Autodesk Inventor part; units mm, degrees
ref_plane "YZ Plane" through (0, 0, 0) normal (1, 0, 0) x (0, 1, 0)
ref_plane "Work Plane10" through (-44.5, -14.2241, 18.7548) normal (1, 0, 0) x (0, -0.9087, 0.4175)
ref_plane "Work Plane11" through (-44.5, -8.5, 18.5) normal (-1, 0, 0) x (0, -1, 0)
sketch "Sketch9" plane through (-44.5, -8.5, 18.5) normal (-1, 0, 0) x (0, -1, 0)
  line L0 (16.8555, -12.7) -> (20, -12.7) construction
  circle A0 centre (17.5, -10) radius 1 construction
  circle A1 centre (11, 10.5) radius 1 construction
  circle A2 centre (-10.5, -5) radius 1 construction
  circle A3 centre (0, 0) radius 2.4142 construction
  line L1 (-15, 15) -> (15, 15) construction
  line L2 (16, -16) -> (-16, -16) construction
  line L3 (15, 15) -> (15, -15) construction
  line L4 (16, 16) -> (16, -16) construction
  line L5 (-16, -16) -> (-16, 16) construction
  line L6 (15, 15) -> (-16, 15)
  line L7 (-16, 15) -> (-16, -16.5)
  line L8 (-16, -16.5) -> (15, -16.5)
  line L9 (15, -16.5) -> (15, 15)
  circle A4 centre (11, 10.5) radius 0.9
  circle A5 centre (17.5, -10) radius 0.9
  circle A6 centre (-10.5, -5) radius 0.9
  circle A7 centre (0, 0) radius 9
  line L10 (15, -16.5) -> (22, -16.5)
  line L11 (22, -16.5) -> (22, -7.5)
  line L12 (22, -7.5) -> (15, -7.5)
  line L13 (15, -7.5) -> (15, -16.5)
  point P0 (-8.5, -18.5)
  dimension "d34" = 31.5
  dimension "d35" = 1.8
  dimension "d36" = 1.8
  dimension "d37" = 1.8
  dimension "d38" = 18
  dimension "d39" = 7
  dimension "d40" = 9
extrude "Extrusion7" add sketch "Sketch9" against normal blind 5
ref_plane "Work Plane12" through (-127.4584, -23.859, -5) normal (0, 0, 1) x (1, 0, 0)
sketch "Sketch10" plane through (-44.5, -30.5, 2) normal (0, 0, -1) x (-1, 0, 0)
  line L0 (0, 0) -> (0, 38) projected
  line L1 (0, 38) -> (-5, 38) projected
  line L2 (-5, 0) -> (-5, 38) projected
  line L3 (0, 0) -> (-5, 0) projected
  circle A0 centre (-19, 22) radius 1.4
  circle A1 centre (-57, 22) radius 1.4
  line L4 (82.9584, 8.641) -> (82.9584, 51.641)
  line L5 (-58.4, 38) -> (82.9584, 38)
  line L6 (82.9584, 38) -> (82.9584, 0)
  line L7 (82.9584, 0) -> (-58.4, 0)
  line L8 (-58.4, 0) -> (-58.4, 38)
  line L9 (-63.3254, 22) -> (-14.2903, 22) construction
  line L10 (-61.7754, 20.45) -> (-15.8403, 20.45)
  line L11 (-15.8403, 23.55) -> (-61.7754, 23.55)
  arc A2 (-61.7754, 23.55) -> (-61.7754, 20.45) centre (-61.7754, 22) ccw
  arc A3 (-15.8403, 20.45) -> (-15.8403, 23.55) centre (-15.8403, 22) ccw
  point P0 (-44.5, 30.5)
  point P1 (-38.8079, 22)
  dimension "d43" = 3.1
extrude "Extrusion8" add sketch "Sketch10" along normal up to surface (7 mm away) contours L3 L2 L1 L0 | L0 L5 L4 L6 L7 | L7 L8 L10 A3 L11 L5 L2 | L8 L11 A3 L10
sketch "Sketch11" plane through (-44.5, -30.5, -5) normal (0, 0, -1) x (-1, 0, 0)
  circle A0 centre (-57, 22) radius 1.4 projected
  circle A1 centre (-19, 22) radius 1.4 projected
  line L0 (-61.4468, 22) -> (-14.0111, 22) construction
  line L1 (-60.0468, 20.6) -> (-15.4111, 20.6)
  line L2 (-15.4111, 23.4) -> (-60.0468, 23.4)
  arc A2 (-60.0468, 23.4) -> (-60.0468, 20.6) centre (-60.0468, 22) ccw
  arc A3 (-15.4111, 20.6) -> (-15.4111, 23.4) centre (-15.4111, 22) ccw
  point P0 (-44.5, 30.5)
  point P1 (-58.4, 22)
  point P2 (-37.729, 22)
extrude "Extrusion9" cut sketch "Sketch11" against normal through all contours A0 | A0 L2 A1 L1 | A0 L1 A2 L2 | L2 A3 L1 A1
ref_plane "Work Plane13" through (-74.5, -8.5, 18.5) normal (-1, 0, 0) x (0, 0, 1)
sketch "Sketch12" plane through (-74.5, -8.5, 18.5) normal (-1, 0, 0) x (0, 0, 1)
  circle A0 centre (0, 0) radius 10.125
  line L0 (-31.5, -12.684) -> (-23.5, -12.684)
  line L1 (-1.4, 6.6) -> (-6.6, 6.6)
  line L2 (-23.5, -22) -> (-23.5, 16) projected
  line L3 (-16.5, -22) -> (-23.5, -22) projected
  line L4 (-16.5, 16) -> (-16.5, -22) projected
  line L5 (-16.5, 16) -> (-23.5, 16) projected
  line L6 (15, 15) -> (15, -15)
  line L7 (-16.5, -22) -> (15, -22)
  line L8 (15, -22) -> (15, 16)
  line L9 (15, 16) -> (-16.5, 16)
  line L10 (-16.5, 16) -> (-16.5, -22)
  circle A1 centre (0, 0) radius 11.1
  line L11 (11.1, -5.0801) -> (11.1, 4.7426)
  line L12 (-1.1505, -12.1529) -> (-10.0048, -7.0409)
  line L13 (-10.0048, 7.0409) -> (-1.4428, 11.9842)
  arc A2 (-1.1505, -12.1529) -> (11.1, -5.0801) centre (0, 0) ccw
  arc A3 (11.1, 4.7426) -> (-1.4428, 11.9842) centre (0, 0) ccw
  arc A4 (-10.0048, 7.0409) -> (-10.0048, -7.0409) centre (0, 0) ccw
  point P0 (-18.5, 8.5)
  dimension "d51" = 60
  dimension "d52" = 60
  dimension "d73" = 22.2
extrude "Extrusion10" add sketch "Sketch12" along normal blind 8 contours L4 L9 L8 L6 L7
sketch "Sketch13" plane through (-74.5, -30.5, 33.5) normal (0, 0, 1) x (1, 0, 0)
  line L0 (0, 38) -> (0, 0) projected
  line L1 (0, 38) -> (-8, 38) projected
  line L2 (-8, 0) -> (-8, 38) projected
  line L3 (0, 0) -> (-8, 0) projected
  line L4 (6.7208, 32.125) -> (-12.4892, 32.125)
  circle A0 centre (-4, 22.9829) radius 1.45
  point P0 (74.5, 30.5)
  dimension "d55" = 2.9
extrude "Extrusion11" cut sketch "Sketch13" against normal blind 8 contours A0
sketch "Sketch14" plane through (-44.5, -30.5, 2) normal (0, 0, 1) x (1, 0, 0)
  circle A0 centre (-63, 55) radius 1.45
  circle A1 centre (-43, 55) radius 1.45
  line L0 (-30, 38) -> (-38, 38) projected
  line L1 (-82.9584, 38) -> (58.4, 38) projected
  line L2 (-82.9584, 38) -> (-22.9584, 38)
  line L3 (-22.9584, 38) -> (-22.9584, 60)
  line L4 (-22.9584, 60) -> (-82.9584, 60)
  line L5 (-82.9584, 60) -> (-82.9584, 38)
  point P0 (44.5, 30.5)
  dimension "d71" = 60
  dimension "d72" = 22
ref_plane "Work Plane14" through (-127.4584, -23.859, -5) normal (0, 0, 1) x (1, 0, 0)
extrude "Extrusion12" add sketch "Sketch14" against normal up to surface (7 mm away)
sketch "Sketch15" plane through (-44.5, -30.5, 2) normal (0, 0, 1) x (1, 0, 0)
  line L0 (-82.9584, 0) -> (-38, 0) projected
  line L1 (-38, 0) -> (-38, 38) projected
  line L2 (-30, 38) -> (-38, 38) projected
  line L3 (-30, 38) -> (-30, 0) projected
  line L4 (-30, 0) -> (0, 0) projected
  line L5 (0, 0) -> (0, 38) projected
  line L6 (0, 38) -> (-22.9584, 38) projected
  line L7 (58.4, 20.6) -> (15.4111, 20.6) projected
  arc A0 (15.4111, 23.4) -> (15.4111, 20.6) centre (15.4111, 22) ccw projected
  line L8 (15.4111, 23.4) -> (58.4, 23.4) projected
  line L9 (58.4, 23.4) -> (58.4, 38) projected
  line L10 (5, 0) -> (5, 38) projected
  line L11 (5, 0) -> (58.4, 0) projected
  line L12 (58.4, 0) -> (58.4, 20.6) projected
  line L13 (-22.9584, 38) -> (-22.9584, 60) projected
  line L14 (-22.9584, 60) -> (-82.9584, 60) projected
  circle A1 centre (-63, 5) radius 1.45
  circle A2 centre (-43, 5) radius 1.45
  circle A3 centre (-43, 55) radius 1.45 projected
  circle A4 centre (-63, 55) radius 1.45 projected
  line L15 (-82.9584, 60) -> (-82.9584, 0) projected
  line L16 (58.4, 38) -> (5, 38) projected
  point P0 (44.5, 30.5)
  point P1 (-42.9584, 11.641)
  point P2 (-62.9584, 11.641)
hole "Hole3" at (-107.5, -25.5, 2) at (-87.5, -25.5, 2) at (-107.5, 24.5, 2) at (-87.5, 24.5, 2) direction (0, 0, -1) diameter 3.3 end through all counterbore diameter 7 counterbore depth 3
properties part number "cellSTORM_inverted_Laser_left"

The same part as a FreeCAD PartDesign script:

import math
import FreeCAD as App
import Part
import Sketcher
Q = App.Units.Quantity

doc = App.newDocument("Part")
body = doc.addObject("PartDesign::Body", "Body")

# Sketch on YZ plane
sketch1 = body.newObject("Sketcher::SketchObject", "Sketch")
sketch1.AttachmentSupport = (doc.getObject("YZ_Plane"), [""])
sketch1.MapMode = "FlatFace"
sketch1.AttachmentOffset = App.Placement(App.Vector(0, 0, -44.5), App.Rotation())
sketch1.addGeometry(Part.LineSegment(App.Vector(-23.5, 11, 0), App.Vector(-23.5, 33.5, 0)), False)
sketch1.addGeometry(Part.LineSegment(App.Vector(-23.5, 33.5, 0), App.Vector(7.5, 33.5, 0)), False)
sketch1.addGeometry(Part.LineSegment(App.Vector(7.5, 33.5, 0), App.Vector(7.5, 2, 0)), False)
sketch1.addGeometry(Part.LineSegment(App.Vector(7.5, 2, 0), App.Vector(-30.5, 2, 0)), False)
sketch1.addGeometry(Part.LineSegment(App.Vector(-30.5, 2, 0), App.Vector(-30.5, 11, 0)), False)
sketch1.addGeometry(Part.LineSegment(App.Vector(-30.5, 11, 0), App.Vector(-23.5, 11, 0)), False)
sketch1.addGeometry(Part.Circle(App.Vector(2, 13.5, 0), App.Vector(0, 0, 1), 0.9), False)
sketch1.addGeometry(Part.Circle(App.Vector(-8.5, 18.5, 0), App.Vector(0, 0, 1), 9), False)
sketch1.addGeometry(Part.Circle(App.Vector(-19.5, 29, 0), App.Vector(0, 0, 1), 0.9), False)
sketch1.addGeometry(Part.Circle(App.Vector(-26, 8.5, 0), App.Vector(0, 0, 1), 0.9), False)
sketch1.addConstraint(Sketcher.Constraint("Coincident", 0, 2, 1, 1))
sketch1.addConstraint(Sketcher.Constraint("Coincident", 1, 2, 2, 1))
sketch1.addConstraint(Sketcher.Constraint("Coincident", 2, 2, 3, 1))
sketch1.addConstraint(Sketcher.Constraint("Coincident", 3, 2, 4, 1))
sketch1.addConstraint(Sketcher.Constraint("Coincident", 4, 2, 5, 1))
sketch1.addConstraint(Sketcher.Constraint("Coincident", 5, 2, 0, 1))
sketch1.addConstraint(Sketcher.Constraint("Vertical", 0))
sketch1.addConstraint(Sketcher.Constraint("Horizontal", 1))
sketch1.addConstraint(Sketcher.Constraint("Vertical", 2))
sketch1.addConstraint(Sketcher.Constraint("Horizontal", 3))
sketch1.addConstraint(Sketcher.Constraint("Vertical", 4))
sketch1.addConstraint(Sketcher.Constraint("Horizontal", 5))
sketch1.addConstraint(Sketcher.Constraint("Equal", 6, 8))
sketch1.addConstraint(Sketcher.Constraint("Equal", 8, 9))
sketch1.addConstraint(Sketcher.Constraint("Diameter", 7, 18.0))
sketch1.addConstraint(Sketcher.Constraint("Diameter", 6, 1.8))
sketch1.addConstraint(Sketcher.Constraint("DistanceX", 5, 1, 5, 2, 7.0))
sketch1.addConstraint(Sketcher.Constraint("DistanceY", 4, 1, 4, 2, 9.0))
sketch1.addConstraint(Sketcher.Constraint("DistanceY", 2, 2, 2, 1, 31.5))
sketch1.addConstraint(Sketcher.Constraint("DistanceY", 4, 2, 8, 3, 18.0))
sketch1.addConstraint(Sketcher.Constraint("DistanceX", 1, 1, 1, 2, 31.0))
sketch1.addConstraint(Sketcher.Constraint("DistanceX", -1, 1, 6, 3, 2.0))
sketch1.addConstraint(Sketcher.Constraint("DistanceY", -1, 1, 8, 3, 29.0))
sketch1.addConstraint(Sketcher.Constraint("DistanceX", 9, 3, -1, 1, 26.0))
sketch1.addConstraint(Sketcher.Constraint("DistanceY", 6, 3, 7, 3, 5.0))
sketch1.addConstraint(Sketcher.Constraint("DistanceX", 8, 3, 7, 3, 11.0))
sketch1.addConstraint(Sketcher.Constraint("DistanceY", 9, 3, 7, 3, 10.0))
sketch1.addConstraint(Sketcher.Constraint("DistanceX", 0, 2, 8, 3, 4.0))
sketch1.addConstraint(Sketcher.Constraint("DistanceY", 7, 3, 0, 2, 15.0))
sketch1.addConstraint(Sketcher.Constraint("DistanceX", 7, 3, -1, 1, 8.5))
pad1 = body.newObject("PartDesign::Pad", "Pad")
pad1.Profile = sketch1
pad1.Length = 5

# Sketch on XY plane
sketch2 = body.newObject("Sketcher::SketchObject", "Sketch001")
sketch2.AttachmentSupport = (doc.getObject("XY_Plane"), [""])
sketch2.MapMode = "FlatFace"
sketch2.AttachmentOffset = App.Placement(App.Vector(0, 0, 2), App.Rotation())
sketch2.addGeometry(Part.LineSegment(App.Vector(13.9, -8.5, 0), App.Vector(13.9, -30.5, 0)), False)
sketch2.addGeometry(Part.LineSegment(App.Vector(13.9, -30.5, 0), App.Vector(-127.5, -30.5, 0)), False)
sketch2.addGeometry(Part.LineSegment(App.Vector(-127.5, -30.5, 0), App.Vector(-127.5, 7.5, 0)), False)
sketch2.addGeometry(Part.LineSegment(App.Vector(-127.5, 7.5, 0), App.Vector(13.9, 7.5, 0)), False)
sketch2.addGeometry(Part.LineSegment(App.Vector(13.9, 7.5, 0), App.Vector(13.9, -8.5, 0)), False)
sketch2.addGeometry(Part.Circle(App.Vector(12.5, -8.5, 0), App.Vector(0, 0, 1), 1.4), False)
sketch2.addGeometry(Part.Circle(App.Vector(-25.5, -8.5, 0), App.Vector(0, 0, 1), 1.4), False)
sketch2.addConstraint(Sketcher.Constraint("Coincident", 0, 2, 1, 1))
sketch2.addConstraint(Sketcher.Constraint("Coincident", 1, 2, 2, 1))
sketch2.addConstraint(Sketcher.Constraint("Coincident", 2, 2, 3, 1))
sketch2.addConstraint(Sketcher.Constraint("Coincident", 3, 2, 4, 1))
sketch2.addConstraint(Sketcher.Constraint("Coincident", 4, 2, 0, 1))
sketch2.addConstraint(Sketcher.Constraint("Vertical", 0))
sketch2.addConstraint(Sketcher.Constraint("Horizontal", 1))
sketch2.addConstraint(Sketcher.Constraint("Vertical", 2))
sketch2.addConstraint(Sketcher.Constraint("Horizontal", 3))
sketch2.addConstraint(Sketcher.Constraint("Vertical", 4))
sketch2.addConstraint(Sketcher.Constraint("Equal", 5, 6))
sketch2.addConstraint(Sketcher.Constraint("Horizontal", 5, 3, 6, 3))
sketch2.addConstraint(Sketcher.Constraint("Horizontal", 6, 3, 4, 2))
sketch2.addConstraint(Sketcher.Constraint("Diameter", 5, 2.8))
sketch2.addConstraint(Sketcher.Constraint("DistanceY", 0, 2, 0, 1, 22.0))
sketch2.addConstraint(Sketcher.Constraint("DistanceY", 2, 1, 2, 2, 38.0))
sketch2.addConstraint(Sketcher.Constraint("DistanceX", 6, 3, 5, 3, 38.0))
sketch2.addConstraint(Sketcher.Constraint("DistanceX", -1, 1, 5, 3, 12.5))
sketch2.addConstraint(Sketcher.Constraint("DistanceY", 5, 3, -1, 1, 8.5))
sketch2.addConstraint(Sketcher.Constraint("DistanceX", -1, 1, 0, 2, 13.9))
sketch2.addConstraint(Sketcher.Constraint("DistanceX", 1, 2, 1, 1, 141.3584))
pad2 = body.newObject("PartDesign::Pad", "Pad001")
pad2.Profile = sketch2
pad2.Length = 7
pad2.Reversed = True

# Sketch on XY plane
sketch3 = body.newObject("Sketcher::SketchObject", "Sketch002")
sketch3.AttachmentSupport = (doc.getObject("XY_Plane"), [""])
sketch3.MapMode = "FlatFace"
sketch3.AttachmentOffset = App.Placement(App.Vector(0, 0, -5), App.Rotation())
sketch3.addGeometry(Part.ArcOfCircle(Part.Circle(App.Vector(-25.5, -8.5, 0), App.Vector(0, 0, 1), 1.4), math.radians(-90), math.radians(90)), False)
sketch3.addGeometry(Part.LineSegment(App.Vector(-25.5, -7.1, 0), App.Vector(15.5, -7.1, 0)), False)
sketch3.addGeometry(Part.ArcOfCircle(Part.Circle(App.Vector(15.5, -8.5, 0), App.Vector(0, 0, 1), 1.4), math.radians(-90), math.radians(90)), False)
sketch3.addGeometry(Part.LineSegment(App.Vector(15.5, -9.9, 0), App.Vector(-25.5, -9.9, 0)), False)
sketch3.addGeometry(Part.LineSegment(App.Vector(-29.1, -7.1, 0), App.Vector(-25.5, -7.1, 0)), False)
sketch3.addGeometry(Part.ArcOfCircle(Part.Circle(App.Vector(-25.5, -8.5, 0), App.Vector(0, 0, 1), 1.4), math.radians(90), math.radians(270)), False)
sketch3.addGeometry(Part.LineSegment(App.Vector(-25.5, -9.9, 0), App.Vector(-29.1, -9.9, 0)), False)
sketch3.addGeometry(Part.ArcOfCircle(Part.Circle(App.Vector(-29.1, -8.5, 0), App.Vector(0, 0, 1), 1.4), math.radians(90), math.radians(270)), False)
sketch3.addConstraint(Sketcher.Constraint("Tangent", 0, 2, 1, 1))
sketch3.addConstraint(Sketcher.Constraint("Tangent", 1, 2, 2, 2))
sketch3.addConstraint(Sketcher.Constraint("Tangent", 2, 1, 3, 1))
sketch3.addConstraint(Sketcher.Constraint("Tangent", 3, 2, 0, 1))
sketch3.addConstraint(Sketcher.Constraint("Tangent", 4, 2, 5, 1))
sketch3.addConstraint(Sketcher.Constraint("Tangent", 5, 2, 6, 1))
sketch3.addConstraint(Sketcher.Constraint("Tangent", 6, 2, 7, 2))
sketch3.addConstraint(Sketcher.Constraint("Tangent", 7, 1, 4, 1))
sketch3.addConstraint(Sketcher.Constraint("Horizontal", 1))
sketch3.addConstraint(Sketcher.Constraint("Horizontal", 3))
sketch3.addConstraint(Sketcher.Constraint("Horizontal", 4))
sketch3.addConstraint(Sketcher.Constraint("Horizontal", 6))
sketch3.addConstraint(Sketcher.Constraint("Coincident", 5, 3, 0, 3))
sketch3.addConstraint(Sketcher.Constraint("Equal", 2, 5))
sketch3.addConstraint(Sketcher.Constraint("Radius", 0, 1.4))
sketch3.addConstraint(Sketcher.Constraint("DistanceX", 0, 3, -1, 1, 25.5))
sketch3.addConstraint(Sketcher.Constraint("DistanceY", 0, 3, -1, 1, 8.5))
sketch3.addConstraint(Sketcher.Constraint("DistanceX", 4, 1, 4, 2, 3.589))
sketch3.addConstraint(Sketcher.Constraint("DistanceX", 1, 1, 1, 2, 41.0468))
pocket1 = body.newObject("PartDesign::Pocket", "Pocket")
pocket1.Profile = sketch3
pocket1.Type = "ThroughAll"
pocket1.Reversed = True

# Sketch on YZ plane
sketch4 = body.newObject("Sketcher::SketchObject", "Sketch003")
sketch4.AttachmentSupport = (doc.getObject("YZ_Plane"), [""])
sketch4.MapMode = "FlatFace"
sketch4.AttachmentOffset = App.Placement(App.Vector(0, 0, -74.5), App.Rotation())
sketch4.addGeometry(Part.LineSegment(App.Vector(8, 2, 0), App.Vector(-30, 2, 0)), False)
sketch4.addGeometry(Part.LineSegment(App.Vector(-30, 2, 0), App.Vector(-30, 34, 0)), False)
sketch4.addGeometry(Part.LineSegment(App.Vector(-30, 34, 0), App.Vector(8, 34, 0)), False)
sketch4.addGeometry(Part.LineSegment(App.Vector(8, 34, 0), App.Vector(8, 2, 0)), False)
sketch4.addGeometry(Part.LineSegment(App.Vector(-4, 30, 0), App.Vector(-14, 30, 0)), False)
sketch4.addGeometry(Part.ArcOfCircle(Part.Circle(App.Vector(-8, 18, 0), App.Vector(0, 0, 1), 12), math.radians(115), math.radians(185)), False)
sketch4.addGeometry(Part.LineSegment(App.Vector(-21, 17, 0), App.Vector(-16, 8, 0)), False)
sketch4.addGeometry(Part.ArcOfCircle(Part.Circle(App.Vector(-8, 18, 0), App.Vector(0, 0, 1), 12), math.radians(-125), math.radians(-55)), False)
sketch4.addGeometry(Part.LineSegment(App.Vector(-1, 8, 0), App.Vector(3, 17, 0)), False)
sketch4.addGeometry(Part.ArcOfCircle(Part.Circle(App.Vector(-8, 18, 0), App.Vector(0, 0, 1), 12), math.radians(-7), math.radians(67)), False)
sketch4.addConstraint(Sketcher.Constraint("Coincident", 0, 2, 1, 1))
sketch4.addConstraint(Sketcher.Constraint("Coincident", 1, 2, 2, 1))
sketch4.addConstraint(Sketcher.Constraint("Coincident", 2, 2, 3, 1))
sketch4.addConstraint(Sketcher.Constraint("Coincident", 3, 2, 0, 1))
sketch4.addConstraint(Sketcher.Constraint("Coincident", 4, 2, 5, 1))
sketch4.addConstraint(Sketcher.Constraint("Coincident", 5, 2, 6, 1))
sketch4.addConstraint(Sketcher.Constraint("Coincident", 6, 2, 7, 1))
sketch4.addConstraint(Sketcher.Constraint("Coincident", 7, 2, 8, 1))
sketch4.addConstraint(Sketcher.Constraint("Coincident", 8, 2, 9, 1))
sketch4.addConstraint(Sketcher.Constraint("Coincident", 9, 2, 4, 1))
sketch4.addConstraint(Sketcher.Constraint("Horizontal", 0))
sketch4.addConstraint(Sketcher.Constraint("Vertical", 1))
sketch4.addConstraint(Sketcher.Constraint("Horizontal", 2))
sketch4.addConstraint(Sketcher.Constraint("Vertical", 3))
sketch4.addConstraint(Sketcher.Constraint("Horizontal", 4))
sketch4.addConstraint(Sketcher.Constraint("Coincident", 7, 3, 5, 3))
sketch4.addConstraint(Sketcher.Constraint("Coincident", 9, 3, 5, 3))
sketch4.addConstraint(Sketcher.Constraint("Horizontal", 6, 2, 7, 2))
sketch4.addConstraint(Sketcher.Constraint("Angle", 6, Q("-60.0002 deg")))
sketch4.addConstraint(Sketcher.Constraint("Angle", 8, Q("59.9999 deg")))
sketch4.addConstraint(Sketcher.Constraint("DistanceX", 0, 2, 0, 1, 38.0))
sketch4.addConstraint(Sketcher.Constraint("DistanceY", 1, 1, 1, 2, 31.5))
sketch4.addConstraint(Sketcher.Constraint("DistanceY", -1, 1, 0, 2, 2.0))
sketch4.addConstraint(Sketcher.Constraint("Radius", 7, 12.234))
sketch4.addConstraint(Sketcher.Constraint("DistanceX", 0, 2, 5, 3, 22.0))
sketch4.addConstraint(Sketcher.Constraint("DistanceY", 5, 3, 1, 2, 15.0))
sketch4.addConstraint(Sketcher.Constraint("DistanceX", 5, 3, -1, 1, 8.5))
sketch4.addConstraint(Sketcher.Constraint("DistanceY", -1, 1, 4, 2, 29.6))
sketch4.addConstraint(Sketcher.Constraint("Radius", 5, 12.2072))
sketch4.addConstraint(Sketcher.Constraint("Radius", 9, 12.0707))
sketch4.addConstraint(Sketcher.Constraint("Distance", 6, 10.224))
pad3 = body.newObject("PartDesign::Pad", "Pad002")
pad3.Profile = sketch4
pad3.Length = 8
pad3.Reversed = True

# Sketch on XY plane
sketch5 = body.newObject("Sketcher::SketchObject", "Sketch004")
sketch5.AttachmentSupport = (doc.getObject("XY_Plane"), [""])
sketch5.MapMode = "FlatFace"
sketch5.AttachmentOffset = App.Placement(App.Vector(0, 0, 33.5), App.Rotation())
sketch5.addGeometry(Part.Circle(App.Vector(-78.5, -7.5, 0), App.Vector(0, 0, 1), 1.4), False)
sketch5.addConstraint(Sketcher.Constraint("Diameter", 0, 2.9))
sketch5.addConstraint(Sketcher.Constraint("DistanceX", 0, 3, -1, 1, 78.5))
sketch5.addConstraint(Sketcher.Constraint("DistanceY", 0, 3, -1, 1, 7.517))
pocket2 = body.newObject("PartDesign::Pocket", "Pocket001")
pocket2.Profile = sketch5
pocket2.Length = 8

# Sketch on XY plane
sketch6 = body.newObject("Sketcher::SketchObject", "Sketch005")
sketch6.AttachmentSupport = (doc.getObject("XY_Plane"), [""])
sketch6.MapMode = "FlatFace"
sketch6.AttachmentOffset = App.Placement(App.Vector(0, 0, 2), App.Rotation())
sketch6.addGeometry(Part.LineSegment(App.Vector(-127.5, 7.5, 0), App.Vector(-67.5, 7.5, 0)), False)
sketch6.addGeometry(Part.LineSegment(App.Vector(-67.5, 7.5, 0), App.Vector(-67.5, 29.5, 0)), False)
sketch6.addGeometry(Part.LineSegment(App.Vector(-67.5, 29.5, 0), App.Vector(-127.5, 29.5, 0)), False)
sketch6.addGeometry(Part.LineSegment(App.Vector(-127.5, 29.5, 0), App.Vector(-127.5, 7.5, 0)), False)
sketch6.addGeometry(Part.Circle(App.Vector(-107.5, 24.5, 0), App.Vector(0, 0, 1), 1.4), False)
sketch6.addGeometry(Part.Circle(App.Vector(-87.5, 24.5, 0), App.Vector(0, 0, 1), 1.4), False)
sketch6.addConstraint(Sketcher.Constraint("Coincident", 0, 2, 1, 1))
sketch6.addConstraint(Sketcher.Constraint("Coincident", 1, 2, 2, 1))
sketch6.addConstraint(Sketcher.Constraint("Coincident", 2, 2, 3, 1))
sketch6.addConstraint(Sketcher.Constraint("Coincident", 3, 2, 0, 1))
sketch6.addConstraint(Sketcher.Constraint("Horizontal", 0))
sketch6.addConstraint(Sketcher.Constraint("Vertical", 1))
sketch6.addConstraint(Sketcher.Constraint("Horizontal", 2))
sketch6.addConstraint(Sketcher.Constraint("Vertical", 3))
sketch6.addConstraint(Sketcher.Constraint("Equal", 4, 5))
sketch6.addConstraint(Sketcher.Constraint("Horizontal", 4, 3, 5, 3))
sketch6.addConstraint(Sketcher.Constraint("DistanceX", 0, 1, 0, 2, 60.0))
sketch6.addConstraint(Sketcher.Constraint("DistanceY", 1, 1, 1, 2, 22.0))
sketch6.addConstraint(Sketcher.Constraint("Diameter", 4, 2.9))
sketch6.addConstraint(Sketcher.Constraint("DistanceX", 4, 3, 5, 3, 20.0))
sketch6.addConstraint(Sketcher.Constraint("DistanceY", 0, 2, 5, 3, 17.0))
sketch6.addConstraint(Sketcher.Constraint("DistanceX", 4, 3, -1, 1, 107.5))
sketch6.addConstraint(Sketcher.Constraint("DistanceY", -1, 1, 4, 3, 24.5))
sketch6.addConstraint(Sketcher.Constraint("DistanceX", 0, 2, -1, 1, 67.4584))
pad4 = body.newObject("PartDesign::Pad", "Pad003")
pad4.Profile = sketch6
pad4.Length = 7
pad4.Reversed = True

# Sketch on XY plane
sketch7 = body.newObject("Sketcher::SketchObject", "Sketch006")
sketch7.AttachmentSupport = (doc.getObject("XY_Plane"), [""])
sketch7.MapMode = "FlatFace"
sketch7.AttachmentOffset = App.Placement(App.Vector(0, 0, 2), App.Rotation())
sketch7.addGeometry(Part.Circle(App.Vector(-107.5, -25.5, 0), App.Vector(0, 0, 1), 1.6), False)
sketch7.addGeometry(Part.Circle(App.Vector(-87.5, -25.5, 0), App.Vector(0, 0, 1), 1.6), False)
sketch7.addGeometry(Part.Circle(App.Vector(-107.5, 24.5, 0), App.Vector(0, 0, 1), 1.6), False)
sketch7.addGeometry(Part.Circle(App.Vector(-87.5, 24.5, 0), App.Vector(0, 0, 1), 1.6), False)
sketch7.addConstraint(Sketcher.Constraint("Equal", 0, 1))
sketch7.addConstraint(Sketcher.Constraint("Equal", 1, 2))
sketch7.addConstraint(Sketcher.Constraint("Equal", 2, 3))
sketch7.addConstraint(Sketcher.Constraint("Horizontal", 0, 3, 1, 3))
sketch7.addConstraint(Sketcher.Constraint("Horizontal", 2, 3, 3, 3))
sketch7.addConstraint(Sketcher.Constraint("Vertical", 0, 3, 2, 3))
sketch7.addConstraint(Sketcher.Constraint("Vertical", 1, 3, 3, 3))
sketch7.addConstraint(Sketcher.Constraint("Diameter", 0, 3.3))
sketch7.addConstraint(Sketcher.Constraint("DistanceX", 0, 3, 1, 3, 20.0))
sketch7.addConstraint(Sketcher.Constraint("DistanceY", 0, 3, 2, 3, 50.0))
sketch7.addConstraint(Sketcher.Constraint("DistanceX", 0, 3, -1, 1, 107.5))
sketch7.addConstraint(Sketcher.Constraint("DistanceY", 0, 3, -1, 1, 25.5))
doc.recompute()
hole = body.newObject("PartDesign::Hole", "Hole")
hole.Profile = sketch7
hole.ThreadType = "None"
hole.Diameter = 3.3
hole.DepthType = "ThroughAll"
hole.HoleCutType = "Counterbore"
hole.HoleCutDiameter = 7
hole.HoleCutDepth = 3

doc.recompute()
